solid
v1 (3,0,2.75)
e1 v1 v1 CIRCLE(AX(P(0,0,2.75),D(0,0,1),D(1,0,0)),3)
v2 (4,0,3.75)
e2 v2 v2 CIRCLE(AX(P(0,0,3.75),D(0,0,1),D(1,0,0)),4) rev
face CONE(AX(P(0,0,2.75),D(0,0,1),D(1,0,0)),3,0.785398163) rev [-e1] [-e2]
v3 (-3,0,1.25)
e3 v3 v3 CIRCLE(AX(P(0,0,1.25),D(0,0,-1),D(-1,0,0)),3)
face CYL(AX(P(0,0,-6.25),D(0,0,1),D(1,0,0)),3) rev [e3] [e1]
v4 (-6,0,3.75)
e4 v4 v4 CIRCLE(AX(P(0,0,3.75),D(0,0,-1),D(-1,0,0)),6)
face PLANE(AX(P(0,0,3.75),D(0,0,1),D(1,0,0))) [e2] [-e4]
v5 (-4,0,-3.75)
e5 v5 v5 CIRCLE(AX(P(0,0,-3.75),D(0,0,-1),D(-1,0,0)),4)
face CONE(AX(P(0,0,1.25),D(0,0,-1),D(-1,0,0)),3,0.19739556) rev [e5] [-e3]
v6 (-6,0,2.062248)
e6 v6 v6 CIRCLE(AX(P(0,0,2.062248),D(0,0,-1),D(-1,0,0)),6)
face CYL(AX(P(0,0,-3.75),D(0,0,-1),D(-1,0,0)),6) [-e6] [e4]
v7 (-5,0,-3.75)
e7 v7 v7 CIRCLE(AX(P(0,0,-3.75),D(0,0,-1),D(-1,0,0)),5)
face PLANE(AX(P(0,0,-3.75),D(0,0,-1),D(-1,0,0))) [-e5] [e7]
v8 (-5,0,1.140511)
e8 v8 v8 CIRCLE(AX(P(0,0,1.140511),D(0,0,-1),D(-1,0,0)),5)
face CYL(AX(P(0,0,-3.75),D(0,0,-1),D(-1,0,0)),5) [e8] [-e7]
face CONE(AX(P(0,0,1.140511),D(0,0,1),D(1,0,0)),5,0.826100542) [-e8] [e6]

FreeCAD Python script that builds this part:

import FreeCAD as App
import Part
import Sketcher

V = App.Vector


def edges_at(feature, points):
    """Names of the edges that pass closest to the given points."""
    edges = feature.Shape.Edges
    near = lambda p: min(range(len(edges)), key=lambda i: edges[i].distToShape(Part.Vertex(*p))[0])
    return sorted({f"Edge{near(p) + 1}" for p in points})


def add_polygon(sketch, points):
    """Adds a closed chain of lines whose ends are joined by coincident constraints."""
    first, n = sketch.GeometryCount, len(points)
    for a, b in zip(points, points[1:] + points[:1]):
        sketch.addGeometry(Part.LineSegment(App.Vector(*a, 0), App.Vector(*b, 0)), False)
    for i in range(n):
        sketch.addConstraint(Sketcher.Constraint("Coincident", first + i, 2, first + (i + 1) % n, 1))

doc = App.newDocument("Part")
body = doc.addObject("PartDesign::Body", "Body")

sketch1 = doc.addObject("Sketcher::SketchObject", "Sketch")
body.addObject(sketch1)
sketch1.AttachmentSupport = (doc.XZ_Plane, [""])
sketch1.MapMode = "FlatFace"
add_polygon(sketch1, [(-3, 1.2), (-4, -3.8), (-5, -3.8), (-5, 1.1), (-6, 2.1), (-6, 3.8), (0, 3.8), (0, 1.2)])
sketch1.addConstraint([
    Sketcher.Constraint("Horizontal", 1),
    Sketcher.Constraint("Vertical", 2),
    Sketcher.Constraint("Vertical", 4),
    Sketcher.Constraint("Horizontal", 5),
    Sketcher.Constraint("Vertical", 6),
    Sketcher.Constraint("Horizontal", 7),
    Sketcher.Constraint("PointOnObject", 5, 2, -2),
    Sketcher.Constraint("DistanceX", 1, 2, 1, 1, 1.0),
    Sketcher.Constraint("DistanceX", 5, 1, 5, 2, 6.0),
    Sketcher.Constraint("DistanceX", 7, 2, 7, 1, 3.0),
    Sketcher.Constraint("DistanceY", 6, 2, 6, 1, 2.5),
    Sketcher.Constraint("DistanceX", 0, 2, -1, 1, 4.0),
    Sketcher.Constraint("DistanceY", 0, 2, 6, 2, 5.0),
    Sketcher.Constraint("Distance", 3, 1.36),
    Sketcher.Constraint("DistanceY", 0, 2, -1, 1, 3.75),
    Sketcher.Constraint("DistanceY", 2, 1, 2, 2, 4.890511),
])
revolution = doc.addObject("PartDesign::Revolution", "Revolution")
body.addObject(revolution)
revolution.Profile = sketch1
revolution.ReferenceAxis = (sketch1, ["V_Axis"])
revolution.Angle = 360

sketch2 = doc.addObject("Sketcher::SketchObject", "Sketch001")
body.addObject(sketch2)
sketch2.AttachmentSupport = (doc.XY_Plane, [""])
sketch2.MapMode = "FlatFace"
sketch2.AttachmentOffset = App.Placement(V(0, 0, 3.75), App.Rotation())
sketch2.addGeometry(Part.Circle(V(0, 0, 0), V(0, 0, 1), 3), False)
sketch2.addConstraint([
    Sketcher.Constraint("Coincident", 0, 3, -1, 1),
    Sketcher.Constraint("Diameter", 0, 6.0),
])
pocket1 = doc.addObject("PartDesign::Pocket", "Pocket")
body.addObject(pocket1)
pocket1.Profile = sketch2
pocket1.Length = 10
doc.recompute()

chamfer = doc.addObject("PartDesign::Chamfer", "Chamfer")
body.addObject(chamfer)
chamfer.Base = (pocket1, edges_at(pocket1, [(-3, 0, 3.75)]))
chamfer.Size = 1

doc.recompute()
